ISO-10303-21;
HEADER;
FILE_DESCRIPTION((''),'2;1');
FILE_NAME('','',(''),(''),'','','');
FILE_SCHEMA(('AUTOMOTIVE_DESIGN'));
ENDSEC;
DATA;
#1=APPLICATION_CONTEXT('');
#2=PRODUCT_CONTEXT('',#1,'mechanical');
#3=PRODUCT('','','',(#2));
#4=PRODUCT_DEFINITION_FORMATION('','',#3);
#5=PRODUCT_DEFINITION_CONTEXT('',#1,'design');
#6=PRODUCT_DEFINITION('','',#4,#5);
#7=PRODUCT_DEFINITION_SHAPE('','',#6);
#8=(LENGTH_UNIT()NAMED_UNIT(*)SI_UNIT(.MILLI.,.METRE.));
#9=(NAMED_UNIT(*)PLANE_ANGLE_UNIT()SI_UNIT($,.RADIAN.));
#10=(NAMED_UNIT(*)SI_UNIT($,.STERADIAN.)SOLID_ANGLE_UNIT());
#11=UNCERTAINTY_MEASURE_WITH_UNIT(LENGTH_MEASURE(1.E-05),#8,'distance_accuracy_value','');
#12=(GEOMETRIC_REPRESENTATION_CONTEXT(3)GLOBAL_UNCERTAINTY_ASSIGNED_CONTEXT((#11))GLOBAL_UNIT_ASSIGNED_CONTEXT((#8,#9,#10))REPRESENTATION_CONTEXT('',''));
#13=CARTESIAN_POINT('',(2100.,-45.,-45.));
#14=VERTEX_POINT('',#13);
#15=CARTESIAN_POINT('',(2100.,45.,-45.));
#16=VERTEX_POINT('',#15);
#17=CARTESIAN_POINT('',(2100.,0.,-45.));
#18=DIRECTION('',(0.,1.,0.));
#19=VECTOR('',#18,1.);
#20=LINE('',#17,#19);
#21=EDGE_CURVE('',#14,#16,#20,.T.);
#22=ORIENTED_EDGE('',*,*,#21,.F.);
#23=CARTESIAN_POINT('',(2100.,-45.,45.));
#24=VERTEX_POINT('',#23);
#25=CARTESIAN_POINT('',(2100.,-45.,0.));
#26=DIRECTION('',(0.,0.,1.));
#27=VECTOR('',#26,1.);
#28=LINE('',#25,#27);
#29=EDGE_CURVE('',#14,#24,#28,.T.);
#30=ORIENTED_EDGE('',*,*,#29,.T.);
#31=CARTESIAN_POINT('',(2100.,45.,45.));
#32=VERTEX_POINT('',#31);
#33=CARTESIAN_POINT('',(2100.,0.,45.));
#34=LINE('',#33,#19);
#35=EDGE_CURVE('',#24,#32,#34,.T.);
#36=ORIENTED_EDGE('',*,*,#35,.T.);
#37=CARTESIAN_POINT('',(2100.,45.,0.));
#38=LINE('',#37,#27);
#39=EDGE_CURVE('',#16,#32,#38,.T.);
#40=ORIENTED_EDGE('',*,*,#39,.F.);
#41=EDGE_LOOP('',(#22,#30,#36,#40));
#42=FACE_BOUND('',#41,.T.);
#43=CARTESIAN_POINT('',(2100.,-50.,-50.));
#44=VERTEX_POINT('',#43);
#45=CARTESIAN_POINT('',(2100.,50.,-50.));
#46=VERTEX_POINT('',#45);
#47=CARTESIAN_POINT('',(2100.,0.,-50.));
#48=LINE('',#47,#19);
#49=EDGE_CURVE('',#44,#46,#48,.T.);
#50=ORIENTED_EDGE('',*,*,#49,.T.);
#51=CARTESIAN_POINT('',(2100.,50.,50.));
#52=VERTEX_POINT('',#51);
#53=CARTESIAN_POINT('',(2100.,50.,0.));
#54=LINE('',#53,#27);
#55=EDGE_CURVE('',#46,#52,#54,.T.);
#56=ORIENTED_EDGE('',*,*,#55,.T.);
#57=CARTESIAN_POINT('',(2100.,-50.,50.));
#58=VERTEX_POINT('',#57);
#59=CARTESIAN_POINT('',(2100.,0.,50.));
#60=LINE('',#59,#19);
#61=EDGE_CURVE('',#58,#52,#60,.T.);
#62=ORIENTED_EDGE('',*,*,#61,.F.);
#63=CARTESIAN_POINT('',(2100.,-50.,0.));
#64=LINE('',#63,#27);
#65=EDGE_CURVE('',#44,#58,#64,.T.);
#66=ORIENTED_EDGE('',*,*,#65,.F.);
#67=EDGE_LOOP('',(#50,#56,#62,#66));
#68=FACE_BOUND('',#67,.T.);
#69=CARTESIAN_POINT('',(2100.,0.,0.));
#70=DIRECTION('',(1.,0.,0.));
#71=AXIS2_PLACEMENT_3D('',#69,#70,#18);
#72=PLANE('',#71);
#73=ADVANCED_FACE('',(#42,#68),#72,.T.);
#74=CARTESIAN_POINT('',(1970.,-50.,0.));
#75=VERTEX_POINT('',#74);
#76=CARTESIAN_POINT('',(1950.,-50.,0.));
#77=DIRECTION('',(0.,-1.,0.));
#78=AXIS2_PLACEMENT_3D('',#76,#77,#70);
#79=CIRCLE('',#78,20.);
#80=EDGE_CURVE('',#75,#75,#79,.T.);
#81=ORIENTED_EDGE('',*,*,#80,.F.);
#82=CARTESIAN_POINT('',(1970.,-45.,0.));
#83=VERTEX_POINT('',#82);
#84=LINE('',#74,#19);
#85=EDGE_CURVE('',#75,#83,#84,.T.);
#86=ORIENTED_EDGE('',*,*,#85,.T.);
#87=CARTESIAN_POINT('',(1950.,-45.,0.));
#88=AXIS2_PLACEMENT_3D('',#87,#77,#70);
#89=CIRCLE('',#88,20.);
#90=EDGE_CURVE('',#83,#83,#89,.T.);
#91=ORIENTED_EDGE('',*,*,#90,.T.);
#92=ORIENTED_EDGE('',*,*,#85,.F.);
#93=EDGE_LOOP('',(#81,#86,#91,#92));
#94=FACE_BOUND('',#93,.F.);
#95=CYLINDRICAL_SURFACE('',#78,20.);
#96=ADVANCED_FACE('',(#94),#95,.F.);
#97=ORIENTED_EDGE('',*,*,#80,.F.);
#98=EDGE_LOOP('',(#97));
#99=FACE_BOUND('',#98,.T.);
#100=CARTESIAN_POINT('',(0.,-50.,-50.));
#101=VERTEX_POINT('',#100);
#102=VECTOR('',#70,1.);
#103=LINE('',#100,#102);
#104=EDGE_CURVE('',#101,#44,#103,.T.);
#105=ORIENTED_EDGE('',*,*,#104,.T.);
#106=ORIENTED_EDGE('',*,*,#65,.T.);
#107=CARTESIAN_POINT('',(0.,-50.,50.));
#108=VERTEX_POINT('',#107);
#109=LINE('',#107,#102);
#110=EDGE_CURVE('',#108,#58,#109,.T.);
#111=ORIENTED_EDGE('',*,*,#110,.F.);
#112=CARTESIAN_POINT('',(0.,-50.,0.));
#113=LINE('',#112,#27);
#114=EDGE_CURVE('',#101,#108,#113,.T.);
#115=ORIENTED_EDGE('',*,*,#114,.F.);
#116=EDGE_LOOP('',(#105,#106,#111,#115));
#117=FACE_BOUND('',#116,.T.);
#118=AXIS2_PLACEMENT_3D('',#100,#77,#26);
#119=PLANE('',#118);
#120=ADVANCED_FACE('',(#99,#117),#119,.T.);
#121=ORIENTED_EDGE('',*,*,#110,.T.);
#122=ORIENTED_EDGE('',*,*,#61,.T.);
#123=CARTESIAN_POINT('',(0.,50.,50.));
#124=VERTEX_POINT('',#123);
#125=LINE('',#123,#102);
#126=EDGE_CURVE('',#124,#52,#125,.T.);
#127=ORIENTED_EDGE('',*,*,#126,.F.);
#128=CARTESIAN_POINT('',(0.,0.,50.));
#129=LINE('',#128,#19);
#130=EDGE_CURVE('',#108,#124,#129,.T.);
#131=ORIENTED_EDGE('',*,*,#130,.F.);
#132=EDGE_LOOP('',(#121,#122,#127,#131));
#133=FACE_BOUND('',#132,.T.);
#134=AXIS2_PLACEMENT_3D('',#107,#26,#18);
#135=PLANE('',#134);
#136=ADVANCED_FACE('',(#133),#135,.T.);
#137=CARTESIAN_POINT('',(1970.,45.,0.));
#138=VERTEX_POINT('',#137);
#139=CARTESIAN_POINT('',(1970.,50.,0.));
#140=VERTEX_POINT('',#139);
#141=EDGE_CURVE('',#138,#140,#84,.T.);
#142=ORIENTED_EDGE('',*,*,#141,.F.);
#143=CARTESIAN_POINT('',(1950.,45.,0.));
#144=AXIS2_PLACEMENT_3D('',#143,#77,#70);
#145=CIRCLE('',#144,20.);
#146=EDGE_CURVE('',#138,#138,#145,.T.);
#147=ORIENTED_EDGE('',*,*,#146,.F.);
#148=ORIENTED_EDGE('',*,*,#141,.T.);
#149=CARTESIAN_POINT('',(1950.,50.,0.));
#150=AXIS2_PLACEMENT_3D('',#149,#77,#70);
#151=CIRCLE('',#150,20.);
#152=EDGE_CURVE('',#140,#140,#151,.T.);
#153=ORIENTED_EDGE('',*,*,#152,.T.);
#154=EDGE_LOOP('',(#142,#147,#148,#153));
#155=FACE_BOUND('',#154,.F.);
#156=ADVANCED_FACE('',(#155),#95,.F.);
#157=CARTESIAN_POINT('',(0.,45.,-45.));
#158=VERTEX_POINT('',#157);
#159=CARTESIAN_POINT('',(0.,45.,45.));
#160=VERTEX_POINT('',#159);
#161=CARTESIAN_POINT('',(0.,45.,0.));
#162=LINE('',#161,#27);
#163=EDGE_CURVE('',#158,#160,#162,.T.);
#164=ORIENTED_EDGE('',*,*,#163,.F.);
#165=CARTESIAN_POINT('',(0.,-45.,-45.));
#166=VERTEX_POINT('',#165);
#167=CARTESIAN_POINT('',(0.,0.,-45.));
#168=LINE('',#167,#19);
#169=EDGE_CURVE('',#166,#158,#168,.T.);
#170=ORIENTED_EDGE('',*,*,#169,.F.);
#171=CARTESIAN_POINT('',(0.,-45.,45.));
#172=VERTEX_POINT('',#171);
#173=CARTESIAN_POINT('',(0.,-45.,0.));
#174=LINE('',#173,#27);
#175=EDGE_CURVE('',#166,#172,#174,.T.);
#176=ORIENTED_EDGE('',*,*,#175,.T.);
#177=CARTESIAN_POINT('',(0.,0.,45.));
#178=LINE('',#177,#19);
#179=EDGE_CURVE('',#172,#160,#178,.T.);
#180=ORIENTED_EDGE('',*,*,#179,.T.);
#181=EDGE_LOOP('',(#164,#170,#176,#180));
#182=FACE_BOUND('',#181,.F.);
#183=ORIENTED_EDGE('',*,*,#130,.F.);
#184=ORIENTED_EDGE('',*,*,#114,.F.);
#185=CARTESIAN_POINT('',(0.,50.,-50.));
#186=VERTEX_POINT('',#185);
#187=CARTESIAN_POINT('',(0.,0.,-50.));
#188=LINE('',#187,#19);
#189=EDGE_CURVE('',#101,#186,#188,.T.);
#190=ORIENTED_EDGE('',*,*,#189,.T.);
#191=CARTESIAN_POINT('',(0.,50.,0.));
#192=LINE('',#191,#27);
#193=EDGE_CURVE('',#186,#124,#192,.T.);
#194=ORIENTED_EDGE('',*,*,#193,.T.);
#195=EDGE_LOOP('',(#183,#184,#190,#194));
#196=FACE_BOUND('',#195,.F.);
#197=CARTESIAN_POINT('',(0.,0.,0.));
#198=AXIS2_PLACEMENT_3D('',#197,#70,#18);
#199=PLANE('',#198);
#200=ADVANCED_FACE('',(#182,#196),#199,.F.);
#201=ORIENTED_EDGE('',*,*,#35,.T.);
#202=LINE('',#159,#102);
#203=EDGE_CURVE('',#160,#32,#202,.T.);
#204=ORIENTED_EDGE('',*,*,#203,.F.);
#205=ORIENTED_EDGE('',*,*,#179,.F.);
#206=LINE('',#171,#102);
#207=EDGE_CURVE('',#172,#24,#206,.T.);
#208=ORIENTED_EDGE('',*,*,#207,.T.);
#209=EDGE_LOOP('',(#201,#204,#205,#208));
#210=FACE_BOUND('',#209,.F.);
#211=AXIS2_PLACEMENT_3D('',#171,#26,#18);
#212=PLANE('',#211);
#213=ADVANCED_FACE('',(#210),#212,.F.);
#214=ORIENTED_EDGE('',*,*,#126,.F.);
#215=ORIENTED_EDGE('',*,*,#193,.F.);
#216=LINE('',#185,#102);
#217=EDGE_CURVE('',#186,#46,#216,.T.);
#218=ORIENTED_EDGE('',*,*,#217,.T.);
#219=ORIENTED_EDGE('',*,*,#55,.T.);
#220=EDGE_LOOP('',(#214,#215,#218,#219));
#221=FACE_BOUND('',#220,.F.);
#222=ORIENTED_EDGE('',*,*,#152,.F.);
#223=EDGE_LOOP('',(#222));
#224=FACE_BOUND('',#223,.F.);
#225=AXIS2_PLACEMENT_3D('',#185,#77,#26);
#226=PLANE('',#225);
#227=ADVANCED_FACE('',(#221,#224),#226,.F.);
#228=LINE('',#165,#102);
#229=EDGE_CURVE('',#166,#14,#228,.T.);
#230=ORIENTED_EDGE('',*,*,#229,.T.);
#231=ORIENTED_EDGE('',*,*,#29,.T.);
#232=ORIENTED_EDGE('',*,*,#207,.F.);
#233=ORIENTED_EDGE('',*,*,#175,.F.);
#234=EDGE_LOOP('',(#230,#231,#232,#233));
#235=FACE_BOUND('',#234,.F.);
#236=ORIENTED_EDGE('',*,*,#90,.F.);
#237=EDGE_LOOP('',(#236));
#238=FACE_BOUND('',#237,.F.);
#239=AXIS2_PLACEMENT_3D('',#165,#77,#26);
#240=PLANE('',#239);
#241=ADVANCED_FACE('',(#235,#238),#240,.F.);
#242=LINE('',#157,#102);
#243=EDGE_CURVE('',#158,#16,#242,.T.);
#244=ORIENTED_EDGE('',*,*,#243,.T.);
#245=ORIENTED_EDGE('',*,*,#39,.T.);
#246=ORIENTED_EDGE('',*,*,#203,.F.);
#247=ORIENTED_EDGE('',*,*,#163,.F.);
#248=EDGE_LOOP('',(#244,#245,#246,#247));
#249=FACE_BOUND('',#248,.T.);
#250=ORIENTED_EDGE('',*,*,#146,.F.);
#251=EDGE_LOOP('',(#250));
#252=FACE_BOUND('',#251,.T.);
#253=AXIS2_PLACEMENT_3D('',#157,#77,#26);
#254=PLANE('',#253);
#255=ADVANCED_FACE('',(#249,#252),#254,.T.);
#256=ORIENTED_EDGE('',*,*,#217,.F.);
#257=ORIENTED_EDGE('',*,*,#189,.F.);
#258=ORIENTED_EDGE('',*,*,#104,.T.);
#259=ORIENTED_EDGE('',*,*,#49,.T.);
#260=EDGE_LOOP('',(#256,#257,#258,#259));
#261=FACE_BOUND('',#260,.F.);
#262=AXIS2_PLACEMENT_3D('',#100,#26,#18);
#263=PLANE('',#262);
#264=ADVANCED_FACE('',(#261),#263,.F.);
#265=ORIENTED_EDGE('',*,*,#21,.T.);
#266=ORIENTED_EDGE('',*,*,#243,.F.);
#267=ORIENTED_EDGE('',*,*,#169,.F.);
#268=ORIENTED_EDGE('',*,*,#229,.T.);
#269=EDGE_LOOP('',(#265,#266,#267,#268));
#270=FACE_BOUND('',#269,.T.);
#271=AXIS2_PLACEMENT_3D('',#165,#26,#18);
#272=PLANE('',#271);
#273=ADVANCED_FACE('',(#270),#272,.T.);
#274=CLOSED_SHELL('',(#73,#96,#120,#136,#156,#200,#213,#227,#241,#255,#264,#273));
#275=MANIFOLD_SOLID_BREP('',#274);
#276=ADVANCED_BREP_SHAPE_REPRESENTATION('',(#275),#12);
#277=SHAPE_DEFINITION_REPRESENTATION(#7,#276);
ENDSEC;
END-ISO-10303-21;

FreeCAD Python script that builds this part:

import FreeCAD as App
import Part
import Sketcher

doc = App.newDocument("Part")
body = doc.addObject("PartDesign::Body", "Body")

sketch1 = body.newObject("Sketcher::SketchObject", "Sketch")
sketch1.AttachmentSupport = (doc.getObject("YZ_Plane"), [""])
sketch1.MapMode = "FlatFace"
sketch1.addGeometry([
    Part.LineSegment(App.Vector(-50, 50, 0), App.Vector(-50, -50, 0)),
    Part.LineSegment(App.Vector(-50, -50, 0), App.Vector(50, -50, 0)),
    Part.LineSegment(App.Vector(50, -50, 0), App.Vector(50, 50, 0)),
    Part.LineSegment(App.Vector(50, 50, 0), App.Vector(-50, 50, 0)),
    Part.LineSegment(App.Vector(45, -45, 0), App.Vector(-45, -45, 0)),
    Part.LineSegment(App.Vector(-45, -45, 0), App.Vector(-45, 45, 0)),
    Part.LineSegment(App.Vector(-45, 45, 0), App.Vector(45, 45, 0)),
    Part.LineSegment(App.Vector(45, 45, 0), App.Vector(45, -45, 0)),
], False)
sketch1.addConstraint([
    Sketcher.Constraint("Coincident", 0, 2, 1, 1),
    Sketcher.Constraint("Coincident", 1, 2, 2, 1),
    Sketcher.Constraint("Coincident", 2, 2, 3, 1),
    Sketcher.Constraint("Coincident", 3, 2, 0, 1),
    Sketcher.Constraint("Coincident", 4, 2, 5, 1),
    Sketcher.Constraint("Coincident", 5, 2, 6, 1),
    Sketcher.Constraint("Coincident", 6, 2, 7, 1),
    Sketcher.Constraint("Coincident", 7, 2, 4, 1),
    Sketcher.Constraint("Vertical", 0),
    Sketcher.Constraint("Horizontal", 1),
    Sketcher.Constraint("Vertical", 2),
    Sketcher.Constraint("Horizontal", 3),
    Sketcher.Constraint("Horizontal", 4),
    Sketcher.Constraint("Vertical", 5),
    Sketcher.Constraint("Horizontal", 6),
    Sketcher.Constraint("Vertical", 7),
    Sketcher.Constraint("Symmetric", 0, 2, 2, 2, -1, 1),
    Sketcher.Constraint("Symmetric", 4, 2, 6, 2, -1, 1),
    Sketcher.Constraint("Equal", 3, 0),
    Sketcher.Constraint("Equal", 6, 5),
    Sketcher.Constraint("DistanceX", 1, 1, 1, 2, 100.0),
    Sketcher.Constraint("DistanceX", 4, 2, 4, 1, 90.0),
])
pad1 = body.newObject("PartDesign::Pad", "Pad")
pad1.Profile = sketch1
pad1.Length = 2100

sketch2 = body.newObject("Sketcher::SketchObject", "Sketch001")
sketch2.AttachmentSupport = (doc.getObject("XZ_Plane"), [""])
sketch2.MapMode = "FlatFace"
sketch2.AttachmentOffset = App.Placement(App.Vector(0, 0, 50), App.Rotation())
sketch2.addGeometry(Part.Circle(App.Vector(1950, 0, 0), App.Vector(0, 0, 1), 20), False)
sketch2.addConstraint([
    Sketcher.Constraint("PointOnObject", 0, 3, -1),
    Sketcher.Constraint("Diameter", 0, 40.0),
    Sketcher.Constraint("DistanceX", -1, 1, 0, 3, 1950.0),
])
pocket1 = body.newObject("PartDesign::Pocket", "Pocket")
pocket1.Profile = sketch2
pocket1.Length = 100

doc.recompute()
